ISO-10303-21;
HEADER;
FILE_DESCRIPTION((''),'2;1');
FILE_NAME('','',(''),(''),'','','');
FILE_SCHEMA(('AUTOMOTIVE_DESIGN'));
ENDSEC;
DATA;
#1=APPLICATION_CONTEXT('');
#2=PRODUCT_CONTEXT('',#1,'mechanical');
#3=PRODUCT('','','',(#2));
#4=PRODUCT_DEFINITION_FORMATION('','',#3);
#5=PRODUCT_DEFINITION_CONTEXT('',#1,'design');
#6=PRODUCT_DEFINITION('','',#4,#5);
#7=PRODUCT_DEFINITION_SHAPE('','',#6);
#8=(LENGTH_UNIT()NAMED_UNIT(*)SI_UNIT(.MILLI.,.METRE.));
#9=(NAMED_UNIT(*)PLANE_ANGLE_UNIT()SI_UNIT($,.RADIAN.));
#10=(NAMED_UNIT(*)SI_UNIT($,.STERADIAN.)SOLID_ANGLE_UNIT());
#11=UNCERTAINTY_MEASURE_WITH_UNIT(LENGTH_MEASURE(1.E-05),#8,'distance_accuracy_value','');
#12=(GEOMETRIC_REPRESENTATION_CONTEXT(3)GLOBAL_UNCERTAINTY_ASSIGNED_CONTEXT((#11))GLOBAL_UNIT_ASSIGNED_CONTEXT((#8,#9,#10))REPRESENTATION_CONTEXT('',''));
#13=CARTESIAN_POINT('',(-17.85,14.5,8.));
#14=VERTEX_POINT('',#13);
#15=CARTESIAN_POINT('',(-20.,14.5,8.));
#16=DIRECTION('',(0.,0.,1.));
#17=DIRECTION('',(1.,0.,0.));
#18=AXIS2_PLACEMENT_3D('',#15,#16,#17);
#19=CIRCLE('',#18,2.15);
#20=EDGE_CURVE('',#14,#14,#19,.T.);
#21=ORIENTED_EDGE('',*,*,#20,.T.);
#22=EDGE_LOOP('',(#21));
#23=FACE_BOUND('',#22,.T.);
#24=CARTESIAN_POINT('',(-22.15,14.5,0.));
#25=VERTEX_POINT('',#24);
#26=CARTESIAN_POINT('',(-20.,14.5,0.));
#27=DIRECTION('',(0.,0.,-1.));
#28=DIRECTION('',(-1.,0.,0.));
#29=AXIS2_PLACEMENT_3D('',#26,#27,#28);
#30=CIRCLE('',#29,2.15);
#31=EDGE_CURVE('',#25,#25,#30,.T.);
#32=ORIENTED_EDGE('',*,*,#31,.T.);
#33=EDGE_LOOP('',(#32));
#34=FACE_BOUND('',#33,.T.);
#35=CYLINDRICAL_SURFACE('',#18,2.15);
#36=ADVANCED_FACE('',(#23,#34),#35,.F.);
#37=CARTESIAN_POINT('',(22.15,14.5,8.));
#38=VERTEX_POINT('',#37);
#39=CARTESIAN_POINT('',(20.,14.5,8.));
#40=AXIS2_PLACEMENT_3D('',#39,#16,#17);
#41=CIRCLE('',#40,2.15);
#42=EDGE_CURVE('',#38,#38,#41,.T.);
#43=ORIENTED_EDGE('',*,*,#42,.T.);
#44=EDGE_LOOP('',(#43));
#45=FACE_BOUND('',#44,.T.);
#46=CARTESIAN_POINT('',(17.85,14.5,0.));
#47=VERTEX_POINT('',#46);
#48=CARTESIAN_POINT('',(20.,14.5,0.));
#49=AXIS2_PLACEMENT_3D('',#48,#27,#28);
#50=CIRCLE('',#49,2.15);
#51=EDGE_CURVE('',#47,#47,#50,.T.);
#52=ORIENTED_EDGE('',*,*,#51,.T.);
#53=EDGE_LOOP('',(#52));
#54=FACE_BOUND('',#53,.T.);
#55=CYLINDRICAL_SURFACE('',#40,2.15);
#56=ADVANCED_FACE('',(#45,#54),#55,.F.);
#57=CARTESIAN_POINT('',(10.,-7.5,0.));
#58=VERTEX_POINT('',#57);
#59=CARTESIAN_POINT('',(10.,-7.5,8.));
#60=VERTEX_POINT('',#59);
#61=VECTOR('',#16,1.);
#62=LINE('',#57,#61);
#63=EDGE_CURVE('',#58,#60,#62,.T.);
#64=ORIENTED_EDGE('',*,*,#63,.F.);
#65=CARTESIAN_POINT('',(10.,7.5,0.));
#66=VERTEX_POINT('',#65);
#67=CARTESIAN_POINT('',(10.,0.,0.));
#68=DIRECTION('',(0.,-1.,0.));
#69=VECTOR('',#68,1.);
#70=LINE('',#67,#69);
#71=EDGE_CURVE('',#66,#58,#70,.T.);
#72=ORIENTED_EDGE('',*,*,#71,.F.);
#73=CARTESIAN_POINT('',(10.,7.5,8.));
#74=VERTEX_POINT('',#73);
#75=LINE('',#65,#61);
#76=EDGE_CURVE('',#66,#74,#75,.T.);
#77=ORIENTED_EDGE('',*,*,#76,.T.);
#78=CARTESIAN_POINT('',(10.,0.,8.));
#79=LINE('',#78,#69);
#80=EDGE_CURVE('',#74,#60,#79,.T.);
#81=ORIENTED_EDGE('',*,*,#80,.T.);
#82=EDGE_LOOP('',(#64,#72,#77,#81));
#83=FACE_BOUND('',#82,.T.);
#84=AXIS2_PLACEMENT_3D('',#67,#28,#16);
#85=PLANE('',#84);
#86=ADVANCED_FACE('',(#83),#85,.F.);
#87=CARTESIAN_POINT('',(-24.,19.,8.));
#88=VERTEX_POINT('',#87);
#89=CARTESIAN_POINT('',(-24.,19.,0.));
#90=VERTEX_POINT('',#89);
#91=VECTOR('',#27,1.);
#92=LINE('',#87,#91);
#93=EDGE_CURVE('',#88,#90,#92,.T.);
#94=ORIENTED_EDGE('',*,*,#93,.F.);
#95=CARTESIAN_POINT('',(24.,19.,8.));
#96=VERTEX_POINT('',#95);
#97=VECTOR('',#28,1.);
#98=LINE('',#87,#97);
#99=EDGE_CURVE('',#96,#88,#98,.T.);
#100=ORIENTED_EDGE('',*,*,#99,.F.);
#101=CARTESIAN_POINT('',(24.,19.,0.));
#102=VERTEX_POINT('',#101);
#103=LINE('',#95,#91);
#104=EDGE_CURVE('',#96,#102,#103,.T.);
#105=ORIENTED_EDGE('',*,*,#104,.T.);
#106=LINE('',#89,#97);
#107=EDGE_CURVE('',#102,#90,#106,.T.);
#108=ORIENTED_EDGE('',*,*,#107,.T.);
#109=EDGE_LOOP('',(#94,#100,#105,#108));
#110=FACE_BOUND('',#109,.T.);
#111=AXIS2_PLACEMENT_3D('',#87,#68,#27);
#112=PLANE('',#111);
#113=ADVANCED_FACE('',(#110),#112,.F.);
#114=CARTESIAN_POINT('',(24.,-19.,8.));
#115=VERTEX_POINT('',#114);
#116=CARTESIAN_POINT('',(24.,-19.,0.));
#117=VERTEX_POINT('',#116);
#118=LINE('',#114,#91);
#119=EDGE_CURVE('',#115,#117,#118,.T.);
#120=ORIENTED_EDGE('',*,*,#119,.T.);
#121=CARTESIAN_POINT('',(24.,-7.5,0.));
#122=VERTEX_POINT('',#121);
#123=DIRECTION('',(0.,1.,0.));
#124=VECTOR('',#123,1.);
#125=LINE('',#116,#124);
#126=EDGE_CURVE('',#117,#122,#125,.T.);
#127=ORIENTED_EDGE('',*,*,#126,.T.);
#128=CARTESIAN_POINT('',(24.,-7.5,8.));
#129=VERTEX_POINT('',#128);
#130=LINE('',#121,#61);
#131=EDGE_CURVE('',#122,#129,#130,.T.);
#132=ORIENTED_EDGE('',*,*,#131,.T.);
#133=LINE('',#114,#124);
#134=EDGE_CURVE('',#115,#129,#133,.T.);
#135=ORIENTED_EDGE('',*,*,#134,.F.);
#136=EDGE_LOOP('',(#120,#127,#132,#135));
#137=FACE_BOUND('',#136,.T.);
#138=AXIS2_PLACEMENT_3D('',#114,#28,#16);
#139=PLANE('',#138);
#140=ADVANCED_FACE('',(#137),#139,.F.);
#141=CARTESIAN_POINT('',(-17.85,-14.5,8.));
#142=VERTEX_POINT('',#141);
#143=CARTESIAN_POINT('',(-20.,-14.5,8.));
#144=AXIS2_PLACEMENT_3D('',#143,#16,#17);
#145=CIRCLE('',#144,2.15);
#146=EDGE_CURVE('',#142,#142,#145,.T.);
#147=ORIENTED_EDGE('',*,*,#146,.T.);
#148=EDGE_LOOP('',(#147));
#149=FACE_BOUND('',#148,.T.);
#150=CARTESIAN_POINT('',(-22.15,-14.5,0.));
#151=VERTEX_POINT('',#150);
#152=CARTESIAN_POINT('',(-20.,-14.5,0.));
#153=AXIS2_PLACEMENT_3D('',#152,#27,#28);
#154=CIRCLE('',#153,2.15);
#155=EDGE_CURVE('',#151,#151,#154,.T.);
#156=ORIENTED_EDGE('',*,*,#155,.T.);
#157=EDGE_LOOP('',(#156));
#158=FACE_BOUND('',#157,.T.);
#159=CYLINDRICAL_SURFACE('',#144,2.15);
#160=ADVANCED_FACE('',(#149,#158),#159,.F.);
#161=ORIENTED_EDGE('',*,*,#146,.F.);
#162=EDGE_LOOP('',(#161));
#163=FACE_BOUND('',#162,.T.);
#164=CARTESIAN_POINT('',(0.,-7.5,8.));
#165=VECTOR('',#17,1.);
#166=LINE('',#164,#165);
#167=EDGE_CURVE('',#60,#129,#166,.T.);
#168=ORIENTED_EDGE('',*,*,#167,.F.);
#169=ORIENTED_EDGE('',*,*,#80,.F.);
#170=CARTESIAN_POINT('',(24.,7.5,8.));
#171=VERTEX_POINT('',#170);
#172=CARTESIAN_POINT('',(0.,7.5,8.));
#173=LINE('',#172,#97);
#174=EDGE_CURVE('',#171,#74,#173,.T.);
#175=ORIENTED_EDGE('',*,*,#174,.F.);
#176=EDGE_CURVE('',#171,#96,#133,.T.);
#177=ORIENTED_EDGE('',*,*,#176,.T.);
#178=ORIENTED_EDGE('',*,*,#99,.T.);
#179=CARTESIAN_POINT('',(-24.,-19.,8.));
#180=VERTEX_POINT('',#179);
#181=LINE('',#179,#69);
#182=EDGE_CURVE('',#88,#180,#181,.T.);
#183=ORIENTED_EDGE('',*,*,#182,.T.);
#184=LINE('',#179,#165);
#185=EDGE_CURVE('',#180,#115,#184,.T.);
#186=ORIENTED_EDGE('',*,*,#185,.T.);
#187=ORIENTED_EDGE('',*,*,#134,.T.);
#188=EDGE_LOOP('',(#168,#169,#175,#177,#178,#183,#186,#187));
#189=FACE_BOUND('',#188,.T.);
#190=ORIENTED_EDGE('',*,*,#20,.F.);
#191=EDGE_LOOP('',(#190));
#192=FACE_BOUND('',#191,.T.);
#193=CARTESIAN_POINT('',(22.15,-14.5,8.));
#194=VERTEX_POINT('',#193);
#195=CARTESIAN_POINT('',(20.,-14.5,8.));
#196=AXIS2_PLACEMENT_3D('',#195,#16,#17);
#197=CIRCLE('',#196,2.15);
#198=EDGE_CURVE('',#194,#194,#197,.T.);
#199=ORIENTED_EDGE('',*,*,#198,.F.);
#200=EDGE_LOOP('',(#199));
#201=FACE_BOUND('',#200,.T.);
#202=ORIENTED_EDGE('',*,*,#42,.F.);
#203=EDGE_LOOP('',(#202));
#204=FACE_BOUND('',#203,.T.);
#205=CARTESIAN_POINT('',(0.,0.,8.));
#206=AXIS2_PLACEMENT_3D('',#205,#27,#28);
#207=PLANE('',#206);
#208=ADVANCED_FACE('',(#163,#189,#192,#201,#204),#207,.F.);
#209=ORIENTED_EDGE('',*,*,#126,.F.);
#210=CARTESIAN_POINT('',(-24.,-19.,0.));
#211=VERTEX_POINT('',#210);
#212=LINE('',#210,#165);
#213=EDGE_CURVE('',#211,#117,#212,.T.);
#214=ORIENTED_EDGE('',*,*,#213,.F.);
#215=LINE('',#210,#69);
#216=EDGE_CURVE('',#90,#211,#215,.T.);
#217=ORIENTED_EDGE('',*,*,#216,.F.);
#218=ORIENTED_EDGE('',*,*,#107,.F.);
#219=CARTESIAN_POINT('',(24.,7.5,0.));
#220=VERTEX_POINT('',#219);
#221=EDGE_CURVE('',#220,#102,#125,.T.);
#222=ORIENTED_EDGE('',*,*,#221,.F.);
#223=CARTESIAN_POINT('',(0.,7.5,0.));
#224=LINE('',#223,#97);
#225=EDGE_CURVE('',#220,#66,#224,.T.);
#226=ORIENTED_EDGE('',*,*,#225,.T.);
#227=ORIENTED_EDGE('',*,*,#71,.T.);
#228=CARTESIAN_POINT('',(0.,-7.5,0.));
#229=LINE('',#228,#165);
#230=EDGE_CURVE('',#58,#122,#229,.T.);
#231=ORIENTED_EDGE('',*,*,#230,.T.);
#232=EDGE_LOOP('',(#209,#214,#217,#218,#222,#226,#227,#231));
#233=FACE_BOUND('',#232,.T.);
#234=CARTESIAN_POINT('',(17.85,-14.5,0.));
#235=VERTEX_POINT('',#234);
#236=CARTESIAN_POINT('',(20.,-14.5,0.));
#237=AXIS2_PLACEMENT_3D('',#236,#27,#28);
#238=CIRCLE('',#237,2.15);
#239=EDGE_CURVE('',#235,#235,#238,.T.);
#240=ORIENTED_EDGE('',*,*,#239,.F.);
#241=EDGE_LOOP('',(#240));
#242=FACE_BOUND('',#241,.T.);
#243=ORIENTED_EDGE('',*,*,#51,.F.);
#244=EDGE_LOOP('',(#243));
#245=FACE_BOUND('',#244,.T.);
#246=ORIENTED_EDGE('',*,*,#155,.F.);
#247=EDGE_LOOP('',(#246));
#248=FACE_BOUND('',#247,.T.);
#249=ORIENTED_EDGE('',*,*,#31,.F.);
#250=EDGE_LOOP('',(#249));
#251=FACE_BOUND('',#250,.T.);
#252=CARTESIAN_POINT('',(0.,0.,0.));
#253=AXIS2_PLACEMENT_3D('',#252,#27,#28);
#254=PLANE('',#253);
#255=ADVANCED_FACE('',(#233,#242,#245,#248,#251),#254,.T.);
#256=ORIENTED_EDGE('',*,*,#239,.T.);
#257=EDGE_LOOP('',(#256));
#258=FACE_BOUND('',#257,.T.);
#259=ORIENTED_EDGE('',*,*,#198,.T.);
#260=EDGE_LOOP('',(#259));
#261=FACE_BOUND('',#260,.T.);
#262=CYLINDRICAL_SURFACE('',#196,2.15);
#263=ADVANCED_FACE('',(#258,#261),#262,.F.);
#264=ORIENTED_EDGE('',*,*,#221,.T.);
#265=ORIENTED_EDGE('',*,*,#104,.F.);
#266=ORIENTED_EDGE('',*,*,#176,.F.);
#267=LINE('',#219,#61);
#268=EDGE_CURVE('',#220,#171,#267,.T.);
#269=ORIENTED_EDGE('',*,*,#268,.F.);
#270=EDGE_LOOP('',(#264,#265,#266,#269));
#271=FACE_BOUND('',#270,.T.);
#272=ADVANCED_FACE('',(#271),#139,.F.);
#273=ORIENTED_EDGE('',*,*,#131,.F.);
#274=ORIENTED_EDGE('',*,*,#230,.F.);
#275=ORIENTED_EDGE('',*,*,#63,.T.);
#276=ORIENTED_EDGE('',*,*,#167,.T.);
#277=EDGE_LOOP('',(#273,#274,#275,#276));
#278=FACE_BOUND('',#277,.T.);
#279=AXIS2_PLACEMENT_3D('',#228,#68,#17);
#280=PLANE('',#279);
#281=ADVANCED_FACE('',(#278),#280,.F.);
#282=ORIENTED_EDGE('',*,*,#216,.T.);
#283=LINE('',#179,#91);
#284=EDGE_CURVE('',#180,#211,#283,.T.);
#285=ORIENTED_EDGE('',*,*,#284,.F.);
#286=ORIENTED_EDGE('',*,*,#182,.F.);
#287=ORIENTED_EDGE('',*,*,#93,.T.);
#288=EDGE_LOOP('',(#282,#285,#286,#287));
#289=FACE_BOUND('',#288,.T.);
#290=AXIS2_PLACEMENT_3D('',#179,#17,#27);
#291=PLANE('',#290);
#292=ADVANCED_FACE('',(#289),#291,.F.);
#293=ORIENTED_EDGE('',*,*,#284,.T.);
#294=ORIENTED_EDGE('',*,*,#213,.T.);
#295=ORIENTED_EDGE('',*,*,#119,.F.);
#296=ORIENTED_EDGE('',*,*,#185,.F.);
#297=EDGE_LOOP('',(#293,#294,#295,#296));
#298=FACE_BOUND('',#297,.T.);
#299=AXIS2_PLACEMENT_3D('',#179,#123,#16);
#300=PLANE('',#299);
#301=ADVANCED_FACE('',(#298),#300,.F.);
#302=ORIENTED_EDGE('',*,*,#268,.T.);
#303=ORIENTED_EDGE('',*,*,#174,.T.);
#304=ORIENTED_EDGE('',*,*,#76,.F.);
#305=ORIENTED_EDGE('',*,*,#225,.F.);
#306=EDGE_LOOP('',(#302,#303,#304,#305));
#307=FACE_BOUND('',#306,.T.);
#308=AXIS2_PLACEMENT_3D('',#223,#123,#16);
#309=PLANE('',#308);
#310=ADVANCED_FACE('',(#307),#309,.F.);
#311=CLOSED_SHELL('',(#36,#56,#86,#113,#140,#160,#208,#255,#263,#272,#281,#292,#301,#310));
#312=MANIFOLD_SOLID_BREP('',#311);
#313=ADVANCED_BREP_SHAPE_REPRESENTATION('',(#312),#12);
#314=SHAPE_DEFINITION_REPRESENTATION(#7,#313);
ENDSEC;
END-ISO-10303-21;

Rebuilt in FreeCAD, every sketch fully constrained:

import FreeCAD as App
import Part
import Sketcher
from FreeCAD import Vector

doc = App.newDocument("Part")
body = doc.addObject("PartDesign::Body", "Body")

sketch1 = doc.addObject("Sketcher::SketchObject", "Sketch")
body.addObject(sketch1)
sketch1.AttachmentSupport = (doc.XY_Plane, [""])
sketch1.MapMode = "FlatFace"
sketch1.addGeometry([
    Part.LineSegment(Vector(-24, 19, 0), Vector(-24, -19, 0)),
    Part.LineSegment(Vector(-24, -19, 0), Vector(24, -19, 0)),
    Part.LineSegment(Vector(24, -19, 0), Vector(24, 19, 0)),
    Part.LineSegment(Vector(24, 19, 0), Vector(-24, 19, 0)),
], False)
sketch1.addConstraint([
    Sketcher.Constraint("Coincident", 0, 2, 1, 1),
    Sketcher.Constraint("Coincident", 1, 2, 2, 1),
    Sketcher.Constraint("Coincident", 2, 2, 3, 1),
    Sketcher.Constraint("Coincident", 3, 2, 0, 1),
    Sketcher.Constraint("Vertical", 0),
    Sketcher.Constraint("Horizontal", 1),
    Sketcher.Constraint("Vertical", 2),
    Sketcher.Constraint("Horizontal", 3),
    Sketcher.Constraint("Symmetric", 0, 2, 2, 2, -1, 1),
    Sketcher.Constraint("DistanceX", 1, 1, 1, 2, 48.0),
    Sketcher.Constraint("DistanceY", 0, 2, 0, 1, 38.0),
])
pad1 = doc.addObject("PartDesign::Pad", "Pad")
body.addObject(pad1)
pad1.Profile = sketch1
pad1.Length = 8

sketch2 = doc.addObject("Sketcher::SketchObject", "Sketch001")
body.addObject(sketch2)
sketch2.AttachmentSupport = (doc.XY_Plane, [""])
sketch2.MapMode = "FlatFace"
sketch2.AttachmentOffset = App.Placement(Vector(0, 0, 8), App.Rotation())
sketch2.addGeometry([
    Part.LineSegment(Vector(10, 8, 0), Vector(10, -8, 0)),
    Part.LineSegment(Vector(10, -8, 0), Vector(24, -8, 0)),
    Part.LineSegment(Vector(24, -8, 0), Vector(24, 8, 0)),
    Part.LineSegment(Vector(24, 8, 0), Vector(10, 8, 0)),
], False)
sketch2.addConstraint([
    Sketcher.Constraint("Coincident", 0, 2, 1, 1),
    Sketcher.Constraint("Coincident", 1, 2, 2, 1),
    Sketcher.Constraint("Coincident", 2, 2, 3, 1),
    Sketcher.Constraint("Coincident", 3, 2, 0, 1),
    Sketcher.Constraint("Vertical", 0),
    Sketcher.Constraint("Horizontal", 1),
    Sketcher.Constraint("Vertical", 2),
    Sketcher.Constraint("Horizontal", 3),
    Sketcher.Constraint("DistanceX", 1, 1, 1, 2, 14.0),
    Sketcher.Constraint("DistanceY", 0, 2, 0, 1, 15.0),
    Sketcher.Constraint("DistanceX", -1, 1, 0, 2, 10.0),
    Sketcher.Constraint("DistanceY", 0, 2, -1, 1, 7.5),
])
pocket1 = doc.addObject("PartDesign::Pocket", "Pocket")
body.addObject(pocket1)
pocket1.Profile = sketch2
pocket1.Length = 8

sketch3 = doc.addObject("Sketcher::SketchObject", "Sketch002")
body.addObject(sketch3)
sketch3.AttachmentSupport = (doc.XY_Plane, [""])
sketch3.MapMode = "FlatFace"
sketch3.AttachmentOffset = App.Placement(Vector(0, 0, 8), App.Rotation())
sketch3.addGeometry([
    Part.Circle(Vector(-20, 14.5, 0), Vector(0, 0, 1), 2.1),
    Part.Circle(Vector(20, 14.5, 0), Vector(0, 0, 1), 2.1),
    Part.Circle(Vector(-20, -14.5, 0), Vector(0, 0, 1), 2.1),
    Part.Circle(Vector(20, -14.5, 0), Vector(0, 0, 1), 2.1),
], False)
sketch3.addConstraint([
    Sketcher.Constraint("Equal", 0, 1),
    Sketcher.Constraint("Equal", 1, 2),
    Sketcher.Constraint("Equal", 2, 3),
    Sketcher.Constraint("Symmetric", 1, 3, 2, 3, -1, 1),
    Sketcher.Constraint("Symmetric", 0, 3, 3, 3, -1, 1),
    Sketcher.Constraint("Symmetric", 0, 3, 1, 3, -2),
    Sketcher.Constraint("Diameter", 0, 4.3),
    Sketcher.Constraint("DistanceX", 0, 3, -1, 1, 20.0),
    Sketcher.Constraint("DistanceY", 2, 3, 0, 3, 29.0),
])
doc.recompute()
hole = doc.addObject("PartDesign::Hole", "Hole")
body.addObject(hole)
hole.Profile = sketch3
hole.ThreadType = "None"
hole.Diameter = 4.3
hole.DepthType = "Dimension"
hole.Depth = 10
hole.DrillPoint = "Angled"
hole.DrillPointAngle = 118

doc.recompute()
